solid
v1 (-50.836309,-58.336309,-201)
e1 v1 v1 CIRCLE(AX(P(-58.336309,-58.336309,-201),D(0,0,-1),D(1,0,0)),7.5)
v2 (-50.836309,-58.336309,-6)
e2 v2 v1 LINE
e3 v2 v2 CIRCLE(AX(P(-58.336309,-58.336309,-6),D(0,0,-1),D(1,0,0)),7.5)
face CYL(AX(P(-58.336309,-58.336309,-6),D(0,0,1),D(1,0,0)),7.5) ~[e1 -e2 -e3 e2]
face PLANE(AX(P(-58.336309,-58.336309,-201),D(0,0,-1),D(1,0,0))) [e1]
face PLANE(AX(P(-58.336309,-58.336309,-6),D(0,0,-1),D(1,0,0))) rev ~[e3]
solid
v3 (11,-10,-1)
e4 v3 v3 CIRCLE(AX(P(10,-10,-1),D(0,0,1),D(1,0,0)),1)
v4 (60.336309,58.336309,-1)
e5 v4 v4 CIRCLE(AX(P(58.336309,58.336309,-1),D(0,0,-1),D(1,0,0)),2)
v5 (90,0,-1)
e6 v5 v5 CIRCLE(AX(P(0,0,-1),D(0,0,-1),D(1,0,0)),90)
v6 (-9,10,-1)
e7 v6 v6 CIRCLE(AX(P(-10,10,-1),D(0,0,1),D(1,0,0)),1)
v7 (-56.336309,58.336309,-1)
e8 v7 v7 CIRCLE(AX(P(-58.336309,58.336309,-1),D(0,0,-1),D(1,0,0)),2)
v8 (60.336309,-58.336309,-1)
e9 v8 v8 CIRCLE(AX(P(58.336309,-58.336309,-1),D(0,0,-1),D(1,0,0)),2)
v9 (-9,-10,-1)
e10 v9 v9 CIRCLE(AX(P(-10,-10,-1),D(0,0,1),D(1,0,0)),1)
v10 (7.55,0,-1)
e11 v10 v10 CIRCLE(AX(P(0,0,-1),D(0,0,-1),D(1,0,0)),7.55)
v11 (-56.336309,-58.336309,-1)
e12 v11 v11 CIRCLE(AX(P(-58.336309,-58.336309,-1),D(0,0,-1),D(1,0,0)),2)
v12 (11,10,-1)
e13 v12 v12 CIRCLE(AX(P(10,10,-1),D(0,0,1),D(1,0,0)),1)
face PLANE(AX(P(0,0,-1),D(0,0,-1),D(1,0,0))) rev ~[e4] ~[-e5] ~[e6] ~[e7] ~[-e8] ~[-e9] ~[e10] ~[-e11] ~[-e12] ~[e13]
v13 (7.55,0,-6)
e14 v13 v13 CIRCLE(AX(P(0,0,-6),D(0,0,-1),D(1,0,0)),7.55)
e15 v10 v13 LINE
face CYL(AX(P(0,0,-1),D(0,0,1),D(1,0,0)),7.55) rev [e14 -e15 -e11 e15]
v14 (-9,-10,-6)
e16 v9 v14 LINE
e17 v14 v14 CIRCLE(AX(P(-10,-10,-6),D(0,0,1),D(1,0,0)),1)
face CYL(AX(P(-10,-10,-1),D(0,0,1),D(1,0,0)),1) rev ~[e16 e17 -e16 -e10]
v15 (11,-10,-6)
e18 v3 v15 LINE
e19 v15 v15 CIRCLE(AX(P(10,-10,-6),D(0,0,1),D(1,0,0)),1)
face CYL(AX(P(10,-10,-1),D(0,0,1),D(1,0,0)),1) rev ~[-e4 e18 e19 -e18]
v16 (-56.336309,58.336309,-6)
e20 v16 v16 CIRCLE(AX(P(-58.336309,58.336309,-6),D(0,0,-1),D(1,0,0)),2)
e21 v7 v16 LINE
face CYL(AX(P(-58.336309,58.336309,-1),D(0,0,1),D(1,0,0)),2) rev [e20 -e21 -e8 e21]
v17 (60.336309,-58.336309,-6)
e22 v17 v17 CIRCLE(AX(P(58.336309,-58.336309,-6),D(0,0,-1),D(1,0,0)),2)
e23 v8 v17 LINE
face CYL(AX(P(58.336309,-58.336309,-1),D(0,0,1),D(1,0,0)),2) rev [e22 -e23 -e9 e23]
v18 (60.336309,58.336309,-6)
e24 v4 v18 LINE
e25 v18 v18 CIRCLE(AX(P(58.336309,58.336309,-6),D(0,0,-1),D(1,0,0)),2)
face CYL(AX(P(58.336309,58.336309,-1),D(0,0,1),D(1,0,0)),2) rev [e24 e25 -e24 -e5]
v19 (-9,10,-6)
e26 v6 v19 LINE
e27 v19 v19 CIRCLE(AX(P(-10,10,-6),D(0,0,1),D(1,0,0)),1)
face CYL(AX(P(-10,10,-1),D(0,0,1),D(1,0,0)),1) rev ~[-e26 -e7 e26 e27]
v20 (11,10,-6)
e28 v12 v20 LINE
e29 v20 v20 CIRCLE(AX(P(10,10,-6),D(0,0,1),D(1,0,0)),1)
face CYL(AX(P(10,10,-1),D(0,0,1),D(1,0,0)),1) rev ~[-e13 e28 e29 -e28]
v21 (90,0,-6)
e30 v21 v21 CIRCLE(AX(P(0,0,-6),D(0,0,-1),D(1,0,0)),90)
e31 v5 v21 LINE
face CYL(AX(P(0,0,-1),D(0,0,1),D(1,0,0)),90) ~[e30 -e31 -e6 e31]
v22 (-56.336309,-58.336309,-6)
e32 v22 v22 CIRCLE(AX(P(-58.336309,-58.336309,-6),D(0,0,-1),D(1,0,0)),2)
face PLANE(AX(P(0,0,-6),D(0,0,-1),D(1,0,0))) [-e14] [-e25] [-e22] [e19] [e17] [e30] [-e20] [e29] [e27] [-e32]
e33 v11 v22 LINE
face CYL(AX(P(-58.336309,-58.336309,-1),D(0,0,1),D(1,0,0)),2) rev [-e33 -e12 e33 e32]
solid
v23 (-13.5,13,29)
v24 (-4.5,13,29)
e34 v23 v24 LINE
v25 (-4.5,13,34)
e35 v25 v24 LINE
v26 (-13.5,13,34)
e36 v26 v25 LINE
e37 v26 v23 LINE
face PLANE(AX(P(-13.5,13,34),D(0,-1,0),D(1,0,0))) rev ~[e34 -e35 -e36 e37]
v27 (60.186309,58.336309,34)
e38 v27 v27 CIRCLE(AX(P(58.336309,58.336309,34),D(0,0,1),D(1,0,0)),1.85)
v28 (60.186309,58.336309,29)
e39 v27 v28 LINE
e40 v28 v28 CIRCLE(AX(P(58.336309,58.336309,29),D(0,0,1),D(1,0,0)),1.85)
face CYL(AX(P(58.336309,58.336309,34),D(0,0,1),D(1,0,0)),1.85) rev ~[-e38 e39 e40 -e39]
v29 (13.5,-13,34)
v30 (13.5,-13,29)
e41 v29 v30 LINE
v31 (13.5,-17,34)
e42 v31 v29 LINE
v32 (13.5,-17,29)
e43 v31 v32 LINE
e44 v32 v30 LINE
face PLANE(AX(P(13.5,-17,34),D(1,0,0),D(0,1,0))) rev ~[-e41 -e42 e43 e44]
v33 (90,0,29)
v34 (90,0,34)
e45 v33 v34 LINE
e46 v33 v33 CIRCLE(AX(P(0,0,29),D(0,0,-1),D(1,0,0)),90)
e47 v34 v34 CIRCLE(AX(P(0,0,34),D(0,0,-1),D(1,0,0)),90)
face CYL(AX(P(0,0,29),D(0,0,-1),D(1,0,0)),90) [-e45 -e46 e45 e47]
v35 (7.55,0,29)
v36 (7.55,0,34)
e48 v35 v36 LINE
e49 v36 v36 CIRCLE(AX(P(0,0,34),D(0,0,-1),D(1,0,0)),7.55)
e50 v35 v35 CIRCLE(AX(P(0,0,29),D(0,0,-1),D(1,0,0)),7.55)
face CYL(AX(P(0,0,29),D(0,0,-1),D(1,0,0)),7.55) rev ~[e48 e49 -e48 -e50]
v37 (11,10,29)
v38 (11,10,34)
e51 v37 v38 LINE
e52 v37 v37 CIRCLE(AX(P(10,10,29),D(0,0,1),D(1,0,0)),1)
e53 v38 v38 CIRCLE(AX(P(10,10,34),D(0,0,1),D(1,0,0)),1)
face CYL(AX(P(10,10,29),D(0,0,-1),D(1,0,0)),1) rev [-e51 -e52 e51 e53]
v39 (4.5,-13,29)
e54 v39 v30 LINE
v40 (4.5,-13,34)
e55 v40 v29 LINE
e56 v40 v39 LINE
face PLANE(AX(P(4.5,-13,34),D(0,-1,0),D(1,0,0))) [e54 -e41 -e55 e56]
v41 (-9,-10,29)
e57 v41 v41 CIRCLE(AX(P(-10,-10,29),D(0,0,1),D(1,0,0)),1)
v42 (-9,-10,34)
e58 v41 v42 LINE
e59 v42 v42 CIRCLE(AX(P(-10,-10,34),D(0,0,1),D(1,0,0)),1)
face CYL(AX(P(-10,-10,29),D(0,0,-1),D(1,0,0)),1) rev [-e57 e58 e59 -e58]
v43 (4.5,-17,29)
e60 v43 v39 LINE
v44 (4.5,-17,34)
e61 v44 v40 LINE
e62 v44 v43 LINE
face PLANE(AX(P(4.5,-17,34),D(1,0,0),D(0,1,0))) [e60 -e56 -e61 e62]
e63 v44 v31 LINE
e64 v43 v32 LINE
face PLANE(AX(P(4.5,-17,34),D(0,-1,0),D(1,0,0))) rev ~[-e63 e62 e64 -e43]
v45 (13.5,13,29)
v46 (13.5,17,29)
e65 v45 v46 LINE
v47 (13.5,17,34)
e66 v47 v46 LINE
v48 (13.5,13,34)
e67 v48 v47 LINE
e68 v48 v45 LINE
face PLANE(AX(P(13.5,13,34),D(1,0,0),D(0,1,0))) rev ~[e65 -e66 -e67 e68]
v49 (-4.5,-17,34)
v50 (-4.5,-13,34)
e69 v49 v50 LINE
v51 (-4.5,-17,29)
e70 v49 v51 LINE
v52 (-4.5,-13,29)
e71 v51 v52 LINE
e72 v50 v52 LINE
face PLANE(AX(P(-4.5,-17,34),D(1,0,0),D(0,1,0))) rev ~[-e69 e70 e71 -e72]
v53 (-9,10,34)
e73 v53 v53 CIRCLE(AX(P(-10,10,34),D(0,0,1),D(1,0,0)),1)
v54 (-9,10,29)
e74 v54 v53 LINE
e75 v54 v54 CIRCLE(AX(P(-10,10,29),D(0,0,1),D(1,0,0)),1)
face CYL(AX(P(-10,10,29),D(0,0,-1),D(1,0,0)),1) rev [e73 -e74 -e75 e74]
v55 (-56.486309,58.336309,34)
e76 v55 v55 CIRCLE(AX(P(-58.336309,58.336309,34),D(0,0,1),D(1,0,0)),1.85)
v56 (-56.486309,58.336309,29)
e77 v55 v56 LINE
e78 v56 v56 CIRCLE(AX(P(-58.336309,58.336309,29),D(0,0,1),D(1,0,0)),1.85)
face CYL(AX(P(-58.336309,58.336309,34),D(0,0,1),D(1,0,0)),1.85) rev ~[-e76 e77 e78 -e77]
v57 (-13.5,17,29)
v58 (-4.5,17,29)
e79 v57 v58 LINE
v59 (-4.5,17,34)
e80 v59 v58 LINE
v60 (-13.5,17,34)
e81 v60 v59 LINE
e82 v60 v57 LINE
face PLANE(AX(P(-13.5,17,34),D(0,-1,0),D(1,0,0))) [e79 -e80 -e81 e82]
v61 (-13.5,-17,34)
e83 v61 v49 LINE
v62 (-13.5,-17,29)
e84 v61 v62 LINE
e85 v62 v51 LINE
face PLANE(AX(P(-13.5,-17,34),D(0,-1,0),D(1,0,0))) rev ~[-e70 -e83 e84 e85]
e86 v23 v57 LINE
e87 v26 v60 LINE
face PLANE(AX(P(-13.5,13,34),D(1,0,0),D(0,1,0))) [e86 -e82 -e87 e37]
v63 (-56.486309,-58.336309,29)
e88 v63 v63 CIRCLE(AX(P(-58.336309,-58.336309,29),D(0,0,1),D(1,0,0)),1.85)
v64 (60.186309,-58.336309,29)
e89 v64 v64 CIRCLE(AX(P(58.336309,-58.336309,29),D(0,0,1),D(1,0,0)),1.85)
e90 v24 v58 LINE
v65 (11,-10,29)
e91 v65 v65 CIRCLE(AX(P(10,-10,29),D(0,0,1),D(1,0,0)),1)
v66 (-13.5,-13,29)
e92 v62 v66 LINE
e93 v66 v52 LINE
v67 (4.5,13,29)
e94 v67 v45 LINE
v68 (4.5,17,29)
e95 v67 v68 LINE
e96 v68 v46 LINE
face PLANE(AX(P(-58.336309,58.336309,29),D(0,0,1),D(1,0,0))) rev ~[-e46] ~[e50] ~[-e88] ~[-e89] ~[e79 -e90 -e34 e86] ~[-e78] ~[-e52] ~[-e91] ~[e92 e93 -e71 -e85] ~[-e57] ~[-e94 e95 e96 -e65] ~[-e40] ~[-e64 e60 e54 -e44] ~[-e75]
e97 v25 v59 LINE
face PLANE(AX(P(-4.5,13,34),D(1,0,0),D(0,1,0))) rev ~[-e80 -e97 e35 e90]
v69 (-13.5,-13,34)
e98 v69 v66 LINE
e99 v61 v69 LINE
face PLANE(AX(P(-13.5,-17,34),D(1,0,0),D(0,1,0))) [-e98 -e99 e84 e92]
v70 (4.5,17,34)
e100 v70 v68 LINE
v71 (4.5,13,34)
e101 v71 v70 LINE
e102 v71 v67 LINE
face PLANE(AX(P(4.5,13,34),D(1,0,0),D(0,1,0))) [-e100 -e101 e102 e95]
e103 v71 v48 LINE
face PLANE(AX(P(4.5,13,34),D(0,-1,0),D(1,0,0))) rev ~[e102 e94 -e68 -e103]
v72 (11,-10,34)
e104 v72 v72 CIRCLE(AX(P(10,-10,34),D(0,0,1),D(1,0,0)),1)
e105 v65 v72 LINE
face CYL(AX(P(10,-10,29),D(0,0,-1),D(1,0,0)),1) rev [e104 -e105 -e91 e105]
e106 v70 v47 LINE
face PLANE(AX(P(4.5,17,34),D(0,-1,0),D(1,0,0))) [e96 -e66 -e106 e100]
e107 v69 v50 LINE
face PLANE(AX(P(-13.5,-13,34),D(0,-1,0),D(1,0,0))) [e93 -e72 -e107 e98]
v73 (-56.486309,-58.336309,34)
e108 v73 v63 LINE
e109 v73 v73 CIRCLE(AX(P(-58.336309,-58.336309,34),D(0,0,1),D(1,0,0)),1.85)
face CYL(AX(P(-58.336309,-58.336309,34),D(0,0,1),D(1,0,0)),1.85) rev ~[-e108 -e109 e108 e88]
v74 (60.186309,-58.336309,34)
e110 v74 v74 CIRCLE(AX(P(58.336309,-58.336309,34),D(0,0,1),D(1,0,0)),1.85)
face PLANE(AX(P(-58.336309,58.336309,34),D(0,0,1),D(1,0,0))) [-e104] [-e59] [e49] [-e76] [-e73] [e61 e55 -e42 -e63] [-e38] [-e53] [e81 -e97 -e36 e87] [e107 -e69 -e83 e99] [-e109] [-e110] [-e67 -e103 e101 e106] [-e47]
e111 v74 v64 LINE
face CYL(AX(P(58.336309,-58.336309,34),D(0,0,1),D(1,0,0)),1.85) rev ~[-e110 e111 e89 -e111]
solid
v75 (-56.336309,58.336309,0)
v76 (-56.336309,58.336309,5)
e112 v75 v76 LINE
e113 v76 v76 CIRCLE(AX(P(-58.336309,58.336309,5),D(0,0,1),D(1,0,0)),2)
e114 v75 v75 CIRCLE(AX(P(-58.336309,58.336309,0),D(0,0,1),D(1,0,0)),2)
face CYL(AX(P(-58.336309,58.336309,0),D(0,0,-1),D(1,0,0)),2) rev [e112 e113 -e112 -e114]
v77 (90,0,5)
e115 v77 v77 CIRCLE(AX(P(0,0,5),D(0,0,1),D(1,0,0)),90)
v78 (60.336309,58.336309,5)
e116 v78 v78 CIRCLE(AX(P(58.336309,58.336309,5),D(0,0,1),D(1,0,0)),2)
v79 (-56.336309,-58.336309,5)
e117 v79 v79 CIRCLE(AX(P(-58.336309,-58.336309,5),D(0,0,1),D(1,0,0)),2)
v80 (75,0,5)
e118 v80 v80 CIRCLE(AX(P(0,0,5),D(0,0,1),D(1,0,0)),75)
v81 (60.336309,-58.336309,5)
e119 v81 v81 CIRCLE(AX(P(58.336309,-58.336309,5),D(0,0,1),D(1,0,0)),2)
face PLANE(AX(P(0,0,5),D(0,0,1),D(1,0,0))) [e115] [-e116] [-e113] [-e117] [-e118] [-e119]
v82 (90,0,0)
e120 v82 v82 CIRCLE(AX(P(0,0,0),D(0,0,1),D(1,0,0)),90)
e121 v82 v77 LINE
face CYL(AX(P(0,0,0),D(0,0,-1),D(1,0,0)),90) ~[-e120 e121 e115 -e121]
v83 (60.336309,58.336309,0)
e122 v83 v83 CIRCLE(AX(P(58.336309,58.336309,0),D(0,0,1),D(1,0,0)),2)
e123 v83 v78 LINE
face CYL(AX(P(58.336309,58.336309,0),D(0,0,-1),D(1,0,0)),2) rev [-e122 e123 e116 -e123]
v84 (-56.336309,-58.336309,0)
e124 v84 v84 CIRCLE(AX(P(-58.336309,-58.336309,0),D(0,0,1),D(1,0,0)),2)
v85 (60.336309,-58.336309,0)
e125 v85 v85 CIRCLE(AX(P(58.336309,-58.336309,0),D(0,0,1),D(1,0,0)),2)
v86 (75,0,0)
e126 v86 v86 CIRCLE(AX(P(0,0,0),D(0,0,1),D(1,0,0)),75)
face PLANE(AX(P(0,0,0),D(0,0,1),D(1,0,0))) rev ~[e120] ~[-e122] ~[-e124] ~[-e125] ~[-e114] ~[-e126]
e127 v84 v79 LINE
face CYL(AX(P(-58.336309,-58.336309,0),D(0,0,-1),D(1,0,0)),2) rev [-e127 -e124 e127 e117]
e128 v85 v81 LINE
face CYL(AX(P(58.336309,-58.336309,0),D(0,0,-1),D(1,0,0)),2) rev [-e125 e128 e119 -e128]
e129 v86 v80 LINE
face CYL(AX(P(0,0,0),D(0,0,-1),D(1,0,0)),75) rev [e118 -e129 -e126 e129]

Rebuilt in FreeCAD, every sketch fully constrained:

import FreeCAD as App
import Part
import Sketcher
Q = App.Units.Quantity

doc = App.newDocument("Part")
body = doc.addObject("PartDesign::Body", "Body")

# Sketch on XY plane
sketch1 = doc.addObject("Sketcher::SketchObject", "Sketch")
body.addObject(sketch1)
sketch1.AttachmentSupport = (doc.XY_Plane, [""])
sketch1.MapMode = "FlatFace"
sketch1.addGeometry([
    Part.Circle(App.Vector(0, 0, 0), App.Vector(0, 0, 1), 90),  # 0
    Part.Circle(App.Vector(-58.3, -58.3, 0), App.Vector(0, 0, 1), 2),  # 1
    Part.Circle(App.Vector(58.3, -58.3, 0), App.Vector(0, 0, 1), 2),  # 2
    Part.Circle(App.Vector(-58.3, 58.3, 0), App.Vector(0, 0, 1), 2),  # 3
    Part.Circle(App.Vector(0, 0, 0), App.Vector(0, 0, 1), 75),  # 4
    Part.Circle(App.Vector(58.3, 58.3, 0), App.Vector(0, 0, 1), 2),  # 5
], False)
sketch1.addConstraint([
    Sketcher.Constraint("Coincident", 0, 3, -1, 1),
    Sketcher.Constraint("Coincident", 4, 3, -1, 1),
    Sketcher.Constraint("Equal", 1, 2),
    Sketcher.Constraint("Equal", 2, 3),
    Sketcher.Constraint("Equal", 3, 5),
    Sketcher.Constraint("Symmetric", 2, 3, 3, 3, -1, 1),
    Sketcher.Constraint("Symmetric", 1, 3, 5, 3, -1, 1),
    Sketcher.Constraint("Symmetric", 1, 3, 2, 3, -2),
    Sketcher.Constraint("Diameter", 0, Q("180 mm")),
    Sketcher.Constraint("Diameter", 1, Q("4 mm")),
    Sketcher.Constraint("Diameter", 4, Q("150 mm")),
    Sketcher.Constraint("DistanceX", 1, 3, -1, 1, Q("58.336309 mm")),
    Sketcher.Constraint("DistanceY", 1, 3, -1, 1, Q("58.336309 mm")),
])
pad1 = doc.addObject("PartDesign::Pad", "Pad")
body.addObject(pad1)
pad1.Profile = sketch1
pad1.Length = 5
body2 = doc.addObject("PartDesign::Body", "Body001")

# Sketch on XY plane
sketch2 = doc.addObject("Sketcher::SketchObject", "Sketch001")
body2.addObject(sketch2)
sketch2.AttachmentSupport = (doc.getObject("XY_Plane001"), [""])
sketch2.MapMode = "FlatFace"
sketch2.AttachmentOffset = App.Placement(App.Vector(0, 0, -1), App.Rotation())
sketch2.addGeometry([
    Part.Circle(App.Vector(0, 0, 0), App.Vector(0, 0, 1), 90),  # 0
    Part.Circle(App.Vector(-58.3, 58.3, 0), App.Vector(0, 0, 1), 2),  # 1
    Part.Circle(App.Vector(0, 0, 0), App.Vector(0, 0, 1), 7.5),  # 2
    Part.Circle(App.Vector(58.3, 58.3, 0), App.Vector(0, 0, 1), 2),  # 3
    Part.Circle(App.Vector(-58.3, -58.3, 0), App.Vector(0, 0, 1), 2),  # 4
    Part.Circle(App.Vector(58.3, -58.3, 0), App.Vector(0, 0, 1), 2),  # 5
], False)
sketch2.addConstraint([
    Sketcher.Constraint("Coincident", 0, 3, -1, 1),
    Sketcher.Constraint("Coincident", 2, 3, -1, 1),
    Sketcher.Constraint("Equal", 1, 3),
    Sketcher.Constraint("Equal", 3, 4),
    Sketcher.Constraint("Equal", 4, 5),
    Sketcher.Constraint("Symmetric", 3, 3, 4, 3, -1, 1),
    Sketcher.Constraint("Symmetric", 1, 3, 5, 3, -1, 1),
    Sketcher.Constraint("Symmetric", 1, 3, 3, 3, -2),
    Sketcher.Constraint("Diameter", 0, Q("180 mm")),
    Sketcher.Constraint("Diameter", 1, Q("4 mm")),
    Sketcher.Constraint("Diameter", 2, Q("15.1 mm")),
    Sketcher.Constraint("DistanceX", 1, 3, -1, 1, Q("58.336309 mm")),
    Sketcher.Constraint("DistanceY", -1, 1, 1, 3, Q("58.336309 mm")),
])
pad2 = doc.addObject("PartDesign::Pad", "Pad001")
body2.addObject(pad2)
pad2.Profile = sketch2
pad2.Length = 5
pad2.Reversed = True

# Sketch on XY plane
sketch3 = doc.addObject("Sketcher::SketchObject", "Sketch002")
body2.addObject(sketch3)
sketch3.AttachmentSupport = (doc.getObject("XY_Plane001"), [""])
sketch3.MapMode = "FlatFace"
sketch3.AttachmentOffset = App.Placement(App.Vector(0, 0, -1), App.Rotation())
sketch3.addGeometry([
    Part.Circle(App.Vector(-10, 10, 0), App.Vector(0, 0, 1), 1),
    Part.Circle(App.Vector(10, 10, 0), App.Vector(0, 0, 1), 1),
    Part.Circle(App.Vector(-10, -10, 0), App.Vector(0, 0, 1), 1),
    Part.Circle(App.Vector(10, -10, 0), App.Vector(0, 0, 1), 1),
], False)
sketch3.addConstraint([
    Sketcher.Constraint("Equal", 0, 1),
    Sketcher.Constraint("Equal", 1, 2),
    Sketcher.Constraint("Equal", 2, 3),
    Sketcher.Constraint("Symmetric", 1, 3, 2, 3, -1, 1),
    Sketcher.Constraint("Symmetric", 0, 3, 3, 3, -1, 1),
    Sketcher.Constraint("Symmetric", 0, 3, 1, 3, -2),
    Sketcher.Constraint("Diameter", 0, Q("2 mm")),
    Sketcher.Constraint("DistanceX", 0, 3, -1, 1, Q("10 mm")),
    Sketcher.Constraint("DistanceY", -1, 1, 0, 3, Q("10 mm")),
])
pocket1 = doc.addObject("PartDesign::Pocket", "Pocket")
body2.addObject(pocket1)
pocket1.Profile = sketch3
pocket1.Type = "ThroughAll"
body3 = doc.addObject("PartDesign::Body", "Body002")

# Sketch on XY plane
sketch4 = doc.addObject("Sketcher::SketchObject", "Sketch003")
body3.addObject(sketch4)
sketch4.AttachmentSupport = (doc.getObject("XY_Plane002"), [""])
sketch4.MapMode = "FlatFace"
sketch4.AttachmentOffset = App.Placement(App.Vector(0, 0, -6), App.Rotation())
sketch4.addGeometry(Part.Circle(App.Vector(-58, -58, 0), App.Vector(0, 0, 1), 8), False)
sketch4.addConstraint([
    Sketcher.Constraint("Diameter", 0, Q("15 mm")),
    Sketcher.Constraint("DistanceX", 0, 3, -1, 1, Q("58.336309 mm")),
    Sketcher.Constraint("DistanceY", 0, 3, -1, 1, Q("58.336309 mm")),
])
pad3 = doc.addObject("PartDesign::Pad", "Pad002")
body3.addObject(pad3)
pad3.Profile = sketch4
pad3.Length = 195
pad3.Reversed = True
body4 = doc.addObject("PartDesign::Body", "Body003")
doc.recompute()

mirroring = doc.addObject("Part::Mirroring", "Mirroring")
mirroring.Source = body2
mirroring.Base = App.Vector(0, 0, 14)
mirroring.Normal = App.Vector(0, 0, -1)
body4.BaseFeature = mirroring
doc.recompute()

# Sketch on XY plane
sketch5 = doc.addObject("Sketcher::SketchObject", "Sketch004")
body4.addObject(sketch5)
sketch5.AttachmentSupport = (doc.getObject("XY_Plane003"), [""])
sketch5.MapMode = "FlatFace"
sketch5.AttachmentOffset = App.Placement(App.Vector(0, 0, 34), App.Rotation())
sketch5.addGeometry([
    Part.LineSegment(App.Vector(4.5, -13, 0), App.Vector(4.5, -17, 0)),  # 0
    Part.LineSegment(App.Vector(4.5, -17, 0), App.Vector(13.5, -17, 0)),  # 1
    Part.LineSegment(App.Vector(13.5, -17, 0), App.Vector(13.5, -13, 0)),  # 2
    Part.LineSegment(App.Vector(13.5, -13, 0), App.Vector(4.5, -13, 0)),  # 3
    Part.LineSegment(App.Vector(-13.5, -13, 0), App.Vector(-13.5, -17, 0)),  # 4
    Part.LineSegment(App.Vector(-13.5, -17, 0), App.Vector(-4.5, -17, 0)),  # 5
    Part.LineSegment(App.Vector(-4.5, -17, 0), App.Vector(-4.5, -13, 0)),  # 6
    Part.LineSegment(App.Vector(-4.5, -13, 0), App.Vector(-13.5, -13, 0)),  # 7
    Part.LineSegment(App.Vector(-13.5, 17, 0), App.Vector(-13.5, 13, 0)),  # 8
    Part.LineSegment(App.Vector(-13.5, 13, 0), App.Vector(-4.5, 13, 0)),  # 9
    Part.LineSegment(App.Vector(-4.5, 13, 0), App.Vector(-4.5, 17, 0)),  # 10
    Part.LineSegment(App.Vector(-4.5, 17, 0), App.Vector(-13.5, 17, 0)),  # 11
    Part.LineSegment(App.Vector(4.5, 17, 0), App.Vector(4.5, 13, 0)),  # 12
    Part.LineSegment(App.Vector(4.5, 13, 0), App.Vector(13.5, 13, 0)),  # 13
    Part.LineSegment(App.Vector(13.5, 13, 0), App.Vector(13.5, 17, 0)),  # 14
    Part.LineSegment(App.Vector(13.5, 17, 0), App.Vector(4.5, 17, 0)),  # 15
], False)
sketch5.addConstraint([
    Sketcher.Constraint("Coincident", 0, 2, 1, 1),
    Sketcher.Constraint("Coincident", 1, 2, 2, 1),
    Sketcher.Constraint("Coincident", 2, 2, 3, 1),
    Sketcher.Constraint("Coincident", 3, 2, 0, 1),
    Sketcher.Constraint("Coincident", 4, 2, 5, 1),
    Sketcher.Constraint("Coincident", 5, 2, 6, 1),
    Sketcher.Constraint("Coincident", 6, 2, 7, 1),
    Sketcher.Constraint("Coincident", 7, 2, 4, 1),
    Sketcher.Constraint("Coincident", 8, 2, 9, 1),
    Sketcher.Constraint("Coincident", 9, 2, 10, 1),
    Sketcher.Constraint("Coincident", 10, 2, 11, 1),
    Sketcher.Constraint("Coincident", 11, 2, 8, 1),
    Sketcher.Constraint("Coincident", 12, 2, 13, 1),
    Sketcher.Constraint("Coincident", 13, 2, 14, 1),
    Sketcher.Constraint("Coincident", 14, 2, 15, 1),
    Sketcher.Constraint("Coincident", 15, 2, 12, 1),
    Sketcher.Constraint("Vertical", 0),
    Sketcher.Constraint("Horizontal", 1),
    Sketcher.Constraint("Vertical", 2),
    Sketcher.Constraint("Horizontal", 3),
    Sketcher.Constraint("Vertical", 4),
    Sketcher.Constraint("Horizontal", 5),
    Sketcher.Constraint("Vertical", 6),
    Sketcher.Constraint("Horizontal", 7),
    Sketcher.Constraint("Vertical", 8),
    Sketcher.Constraint("Horizontal", 9),
    Sketcher.Constraint("Vertical", 10),
    Sketcher.Constraint("Horizontal", 11),
    Sketcher.Constraint("Vertical", 12),
    Sketcher.Constraint("Horizontal", 13),
    Sketcher.Constraint("Vertical", 14),
    Sketcher.Constraint("Horizontal", 15),
    Sketcher.Constraint("Symmetric", 2, 2, 8, 2, -1, 1),
    Sketcher.Constraint("Symmetric", 0, 2, 10, 2, -1, 1),
    Sketcher.Constraint("Symmetric", 6, 2, 12, 2, -1, 1),
    Sketcher.Constraint("Symmetric", 4, 2, 14, 2, -1, 1),
    Sketcher.Constraint("Symmetric", 1, 2, 4, 2, -2),
    Sketcher.Constraint("Symmetric", 3, 2, 6, 2, -2),
    Sketcher.Constraint("DistanceX", 1, 1, 1, 2, Q("9 mm")),
    Sketcher.Constraint("DistanceY", 0, 2, 0, 1, Q("4 mm")),
    Sketcher.Constraint("DistanceY", 0, 2, -1, 1, Q("17 mm")),
    Sketcher.Constraint("DistanceX", 4, 2, 0, 2, Q("18 mm")),
])
pocket2 = doc.addObject("PartDesign::Pocket", "Pocket001")
body4.addObject(pocket2)
pocket2.Profile = sketch5
pocket2.Type = "ThroughAll"

# Sketch on XY plane
sketch6 = doc.addObject("Sketcher::SketchObject", "Sketch005")
body4.addObject(sketch6)
sketch6.AttachmentSupport = (doc.getObject("XY_Plane003"), [""])
sketch6.MapMode = "FlatFace"
sketch6.AttachmentOffset = App.Placement(App.Vector(0, 0, 34), App.Rotation())
sketch6.addGeometry([
    Part.Circle(App.Vector(-58.3, 58.3, 0), App.Vector(0, 0, 1), 2),  # 0
    Part.Circle(App.Vector(-58.3, 58.3, 0), App.Vector(0, 0, 1), 1.9),  # 1
    Part.Circle(App.Vector(-58.3, -58.3, 0), App.Vector(0, 0, 1), 2),  # 2
    Part.Circle(App.Vector(-58.3, -58.3, 0), App.Vector(0, 0, 1), 1.9),  # 3
    Part.Circle(App.Vector(58.3, -58.3, 0), App.Vector(0, 0, 1), 2),  # 4
    Part.Circle(App.Vector(58.3, -58.3, 0), App.Vector(0, 0, 1), 1.9),  # 5
    Part.Circle(App.Vector(58.3, 58.3, 0), App.Vector(0, 0, 1), 2),  # 6
    Part.Circle(App.Vector(58.3, 58.3, 0), App.Vector(0, 0, 1), 1.9),  # 7
], False)
sketch6.addConstraint([
    Sketcher.Constraint("Coincident", 1, 3, 0, 3),
    Sketcher.Constraint("Coincident", 3, 3, 2, 3),
    Sketcher.Constraint("Coincident", 5, 3, 4, 3),
    Sketcher.Constraint("Coincident", 7, 3, 6, 3),
    Sketcher.Constraint("Equal", 0, 2),
    Sketcher.Constraint("Equal", 1, 3),
    Sketcher.Constraint("Equal", 2, 4),
    Sketcher.Constraint("Equal", 3, 5),
    Sketcher.Constraint("Equal", 4, 6),
    Sketcher.Constraint("Equal", 5, 7),
    Sketcher.Constraint("Symmetric", 0, 3, 4, 3, -1, 1),
    Sketcher.Constraint("Symmetric", 2, 3, 6, 3, -1, 1),
    Sketcher.Constraint("Symmetric", 2, 3, 4, 3, -2),
    Sketcher.Constraint("Diameter", 0, Q("4 mm")),
    Sketcher.Constraint("Diameter", 1, Q("3.7 mm")),
    Sketcher.Constraint("DistanceX", 0, 3, -1, 1, Q("58.336309 mm")),
    Sketcher.Constraint("DistanceY", -1, 1, 0, 3, Q("58.336309 mm")),
])
pad4 = doc.addObject("PartDesign::Pad", "Pad003")
body4.addObject(pad4)
pad4.Profile = sketch6
pad4.Length = 5
pad4.Reversed = True
mirroring.Visibility = False

doc.recompute()
